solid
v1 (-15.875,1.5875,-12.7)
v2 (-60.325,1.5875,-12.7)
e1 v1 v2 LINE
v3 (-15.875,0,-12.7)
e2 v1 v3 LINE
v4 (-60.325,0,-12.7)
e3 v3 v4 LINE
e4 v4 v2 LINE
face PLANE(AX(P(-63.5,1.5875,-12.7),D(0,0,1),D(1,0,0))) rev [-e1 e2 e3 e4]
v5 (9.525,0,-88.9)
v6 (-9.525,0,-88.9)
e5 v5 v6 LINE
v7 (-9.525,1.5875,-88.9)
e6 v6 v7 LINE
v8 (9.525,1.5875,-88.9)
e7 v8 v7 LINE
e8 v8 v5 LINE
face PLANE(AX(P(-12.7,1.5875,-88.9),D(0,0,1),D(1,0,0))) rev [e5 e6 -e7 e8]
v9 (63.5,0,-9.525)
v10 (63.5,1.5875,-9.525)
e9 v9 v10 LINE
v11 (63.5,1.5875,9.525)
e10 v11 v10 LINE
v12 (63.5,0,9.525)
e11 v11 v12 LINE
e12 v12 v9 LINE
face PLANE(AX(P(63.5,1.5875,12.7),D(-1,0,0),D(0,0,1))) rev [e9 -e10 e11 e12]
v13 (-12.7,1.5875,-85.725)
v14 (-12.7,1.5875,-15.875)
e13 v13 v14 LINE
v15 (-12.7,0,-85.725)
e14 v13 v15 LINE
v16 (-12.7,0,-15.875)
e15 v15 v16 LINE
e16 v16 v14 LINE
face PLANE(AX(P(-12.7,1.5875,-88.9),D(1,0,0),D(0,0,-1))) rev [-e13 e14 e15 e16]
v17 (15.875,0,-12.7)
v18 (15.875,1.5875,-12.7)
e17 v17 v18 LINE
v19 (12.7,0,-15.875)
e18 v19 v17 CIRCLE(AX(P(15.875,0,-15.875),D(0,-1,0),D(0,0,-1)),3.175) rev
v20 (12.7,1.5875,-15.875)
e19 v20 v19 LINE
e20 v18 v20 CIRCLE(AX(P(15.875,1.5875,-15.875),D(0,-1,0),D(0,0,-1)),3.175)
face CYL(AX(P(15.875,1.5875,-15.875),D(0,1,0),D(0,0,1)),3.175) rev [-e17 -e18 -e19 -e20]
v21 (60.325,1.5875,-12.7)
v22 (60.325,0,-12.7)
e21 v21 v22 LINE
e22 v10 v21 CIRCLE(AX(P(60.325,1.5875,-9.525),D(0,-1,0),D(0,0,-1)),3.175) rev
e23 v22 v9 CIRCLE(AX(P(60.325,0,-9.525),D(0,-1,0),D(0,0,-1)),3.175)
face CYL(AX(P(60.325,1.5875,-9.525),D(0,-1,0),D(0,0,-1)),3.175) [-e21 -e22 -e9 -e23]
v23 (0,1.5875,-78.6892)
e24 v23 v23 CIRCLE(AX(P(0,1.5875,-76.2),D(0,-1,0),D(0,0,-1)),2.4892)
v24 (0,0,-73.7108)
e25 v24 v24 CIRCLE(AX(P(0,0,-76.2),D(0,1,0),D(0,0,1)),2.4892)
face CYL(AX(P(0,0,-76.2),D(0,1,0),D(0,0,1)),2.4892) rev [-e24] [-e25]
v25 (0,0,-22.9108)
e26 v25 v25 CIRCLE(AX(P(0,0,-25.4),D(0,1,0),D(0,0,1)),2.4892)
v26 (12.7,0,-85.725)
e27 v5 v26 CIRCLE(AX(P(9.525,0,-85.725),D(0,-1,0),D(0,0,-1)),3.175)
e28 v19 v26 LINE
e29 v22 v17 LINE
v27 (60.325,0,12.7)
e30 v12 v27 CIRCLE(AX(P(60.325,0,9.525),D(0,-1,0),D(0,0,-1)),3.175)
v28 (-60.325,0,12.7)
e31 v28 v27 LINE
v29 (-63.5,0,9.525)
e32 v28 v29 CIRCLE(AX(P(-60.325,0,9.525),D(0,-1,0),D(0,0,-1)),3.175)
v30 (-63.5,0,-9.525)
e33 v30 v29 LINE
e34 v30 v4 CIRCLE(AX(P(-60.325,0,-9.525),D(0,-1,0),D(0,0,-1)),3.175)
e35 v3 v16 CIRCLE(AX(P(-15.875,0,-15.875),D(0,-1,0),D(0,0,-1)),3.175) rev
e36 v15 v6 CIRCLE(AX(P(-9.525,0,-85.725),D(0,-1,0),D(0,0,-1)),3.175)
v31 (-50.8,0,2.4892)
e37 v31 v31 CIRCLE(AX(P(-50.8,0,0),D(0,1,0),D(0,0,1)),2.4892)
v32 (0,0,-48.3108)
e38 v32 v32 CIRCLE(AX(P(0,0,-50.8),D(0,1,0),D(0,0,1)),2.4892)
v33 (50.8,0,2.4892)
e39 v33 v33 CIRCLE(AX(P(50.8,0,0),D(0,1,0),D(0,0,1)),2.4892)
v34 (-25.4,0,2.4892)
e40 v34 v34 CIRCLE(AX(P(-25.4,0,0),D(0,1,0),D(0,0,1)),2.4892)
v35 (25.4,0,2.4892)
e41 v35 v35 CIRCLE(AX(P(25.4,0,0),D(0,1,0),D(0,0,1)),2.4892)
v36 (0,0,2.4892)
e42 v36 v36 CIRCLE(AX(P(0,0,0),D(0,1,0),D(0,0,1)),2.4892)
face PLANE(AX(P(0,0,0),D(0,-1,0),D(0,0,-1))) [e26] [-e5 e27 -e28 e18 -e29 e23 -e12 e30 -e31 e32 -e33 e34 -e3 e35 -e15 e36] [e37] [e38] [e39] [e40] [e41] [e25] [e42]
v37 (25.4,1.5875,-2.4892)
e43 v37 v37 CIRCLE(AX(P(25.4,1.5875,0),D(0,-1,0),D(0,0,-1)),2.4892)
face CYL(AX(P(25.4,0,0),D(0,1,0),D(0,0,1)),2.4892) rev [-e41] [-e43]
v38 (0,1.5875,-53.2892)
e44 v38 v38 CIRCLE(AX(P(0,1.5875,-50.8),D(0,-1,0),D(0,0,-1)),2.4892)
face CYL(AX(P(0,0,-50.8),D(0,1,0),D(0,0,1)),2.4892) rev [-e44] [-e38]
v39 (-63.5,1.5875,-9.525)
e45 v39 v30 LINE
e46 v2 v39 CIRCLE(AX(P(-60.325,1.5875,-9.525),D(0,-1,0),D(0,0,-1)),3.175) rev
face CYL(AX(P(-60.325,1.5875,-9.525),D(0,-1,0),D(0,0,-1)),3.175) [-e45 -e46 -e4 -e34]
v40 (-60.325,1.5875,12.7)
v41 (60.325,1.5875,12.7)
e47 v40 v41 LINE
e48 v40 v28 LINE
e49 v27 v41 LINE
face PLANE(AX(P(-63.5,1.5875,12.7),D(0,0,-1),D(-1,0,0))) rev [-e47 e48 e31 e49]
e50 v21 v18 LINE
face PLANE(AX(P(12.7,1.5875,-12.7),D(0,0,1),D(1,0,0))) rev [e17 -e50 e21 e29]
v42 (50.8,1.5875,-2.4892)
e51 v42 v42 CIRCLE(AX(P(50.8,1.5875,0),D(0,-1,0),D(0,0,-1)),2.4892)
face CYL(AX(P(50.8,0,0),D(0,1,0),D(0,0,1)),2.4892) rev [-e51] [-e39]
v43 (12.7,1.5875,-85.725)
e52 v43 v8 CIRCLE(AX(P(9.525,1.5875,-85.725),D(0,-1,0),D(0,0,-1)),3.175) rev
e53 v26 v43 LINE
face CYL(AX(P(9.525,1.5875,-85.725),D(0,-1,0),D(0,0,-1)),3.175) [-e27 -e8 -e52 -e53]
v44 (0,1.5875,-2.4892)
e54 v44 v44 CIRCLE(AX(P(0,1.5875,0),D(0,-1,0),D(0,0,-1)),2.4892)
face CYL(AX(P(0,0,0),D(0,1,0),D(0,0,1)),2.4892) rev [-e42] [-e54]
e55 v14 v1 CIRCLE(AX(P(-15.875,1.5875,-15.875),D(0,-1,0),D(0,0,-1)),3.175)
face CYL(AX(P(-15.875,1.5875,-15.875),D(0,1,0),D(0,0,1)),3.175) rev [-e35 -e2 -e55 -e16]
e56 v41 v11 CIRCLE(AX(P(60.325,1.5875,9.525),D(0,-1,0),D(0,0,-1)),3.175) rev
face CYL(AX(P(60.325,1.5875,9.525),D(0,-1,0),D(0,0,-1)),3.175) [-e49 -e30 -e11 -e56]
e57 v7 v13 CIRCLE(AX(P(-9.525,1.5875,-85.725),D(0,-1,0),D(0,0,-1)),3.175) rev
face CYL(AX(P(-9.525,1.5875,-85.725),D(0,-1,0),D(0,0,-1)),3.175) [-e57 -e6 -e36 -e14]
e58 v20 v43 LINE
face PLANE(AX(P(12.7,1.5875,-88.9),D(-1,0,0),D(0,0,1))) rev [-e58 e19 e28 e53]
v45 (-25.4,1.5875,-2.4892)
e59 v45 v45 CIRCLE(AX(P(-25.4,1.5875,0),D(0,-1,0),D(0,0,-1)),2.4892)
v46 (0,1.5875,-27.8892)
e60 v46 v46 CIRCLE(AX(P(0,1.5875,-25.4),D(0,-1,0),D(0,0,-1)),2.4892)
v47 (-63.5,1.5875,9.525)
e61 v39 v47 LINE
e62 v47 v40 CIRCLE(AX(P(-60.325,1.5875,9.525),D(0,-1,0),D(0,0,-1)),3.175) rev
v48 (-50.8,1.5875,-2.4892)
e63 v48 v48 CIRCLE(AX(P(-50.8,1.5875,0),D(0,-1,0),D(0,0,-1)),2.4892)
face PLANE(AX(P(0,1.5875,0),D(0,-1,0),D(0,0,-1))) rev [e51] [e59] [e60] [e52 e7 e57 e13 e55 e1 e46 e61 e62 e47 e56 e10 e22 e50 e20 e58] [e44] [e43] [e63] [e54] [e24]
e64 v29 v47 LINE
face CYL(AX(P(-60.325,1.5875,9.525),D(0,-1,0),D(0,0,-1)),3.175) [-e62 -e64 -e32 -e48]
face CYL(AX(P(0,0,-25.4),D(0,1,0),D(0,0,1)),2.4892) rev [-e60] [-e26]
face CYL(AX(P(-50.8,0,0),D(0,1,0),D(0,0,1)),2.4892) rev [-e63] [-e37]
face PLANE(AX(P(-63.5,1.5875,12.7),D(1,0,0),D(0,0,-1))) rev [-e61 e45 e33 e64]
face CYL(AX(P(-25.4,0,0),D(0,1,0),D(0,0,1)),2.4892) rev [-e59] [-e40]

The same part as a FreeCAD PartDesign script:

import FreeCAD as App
import Part
import Sketcher

V = App.Vector
Q = App.Units.Quantity


def edges_at(feature, points):
    """Names of the edges that pass closest to the given points."""
    edges = feature.Shape.Edges
    near = lambda p: min(range(len(edges)), key=lambda i: edges[i].distToShape(Part.Vertex(*p))[0])
    return sorted({f"Edge{near(p) + 1}" for p in points})

doc = App.newDocument("Part")
params = doc.addObject("Spreadsheet::Sheet", "Params")
for row, (alias, value) in enumerate([
    ("sketch1_width", "2 in"),
    ("sketch1_width2", "1 in"),
    ("sketch1_height", "3 in"),
    ("pad1_length", "0.0625 in"),
    ("sketch2_diameter", "0.196 in"),
    ("fillet_radius", "0.125 in"),
], start=1):
    params.set(f"A{row}", alias)
    params.set(f"B{row}", "=" + value)
    params.setAlias(f"B{row}", alias)

body = doc.addObject("PartDesign::Body", "Body")

# Sketch on XZ plane
sketch1 = body.newObject("Sketcher::SketchObject", "Sketch")
sketch1.AttachmentSupport = (doc.getObject("XZ_Plane"), [""])
sketch1.MapMode = "FlatFace"
sketch1.addGeometry([
    Part.LineSegment(V(63.5, -12.7, 0), V(12.7, -12.7, 0)),  # 0
    Part.LineSegment(V(12.7, -12.7, 0), V(12.7, -88.9, 0)),  # 1
    Part.LineSegment(V(12.7, -88.9, 0), V(-12.7, -88.9, 0)),  # 2
    Part.LineSegment(V(-12.7, -88.9, 0), V(-12.7, -12.7, 0)),  # 3
    Part.LineSegment(V(-12.7, -12.7, 0), V(-63.5, -12.7, 0)),  # 4
    Part.LineSegment(V(-63.5, -12.7, 0), V(-63.5, 12.7, 0)),  # 5
    Part.LineSegment(V(-63.5, 12.7, 0), V(63.5, 12.7, 0)),  # 6
    Part.LineSegment(V(63.5, 12.7, 0), V(63.5, -12.7, 0)),  # 7
], False)
sketch1.addConstraint([
    Sketcher.Constraint("Coincident", 0, 2, 1, 1),
    Sketcher.Constraint("Coincident", 1, 2, 2, 1),
    Sketcher.Constraint("Coincident", 2, 2, 3, 1),
    Sketcher.Constraint("Coincident", 3, 2, 4, 1),
    Sketcher.Constraint("Coincident", 4, 2, 5, 1),
    Sketcher.Constraint("Coincident", 5, 2, 6, 1),
    Sketcher.Constraint("Coincident", 6, 2, 7, 1),
    Sketcher.Constraint("Coincident", 7, 2, 0, 1),
    Sketcher.Constraint("Horizontal", 0),
    Sketcher.Constraint("Vertical", 1),
    Sketcher.Constraint("Horizontal", 2),
    Sketcher.Constraint("Vertical", 3),
    Sketcher.Constraint("Horizontal", 4),
    Sketcher.Constraint("Vertical", 5),
    Sketcher.Constraint("Horizontal", 6),
    Sketcher.Constraint("Vertical", 7),
    Sketcher.Constraint("Symmetric", 4, 2, 6, 2, -1, 1),
    Sketcher.Constraint("Symmetric", 0, 2, 3, 2, -2),
    Sketcher.Constraint("Equal", 2, 5),
    Sketcher.Constraint("DistanceX", 0, 2, 0, 1, Q("2 in")),
    Sketcher.Constraint("DistanceX", 2, 2, 2, 1, Q("1 in")),
    Sketcher.Constraint("DistanceY", 1, 2, 1, 1, Q("3 in")),
])
sketch1.setExpression("Constraints[19]", "Params.sketch1_width")
sketch1.setExpression("Constraints[20]", "Params.sketch1_width2")
sketch1.setExpression("Constraints[21]", "Params.sketch1_height")
pad1 = body.newObject("PartDesign::Pad", "Pad")
pad1.Profile = sketch1
pad1.setExpression("Length", "Params.pad1_length")
pad1.Reversed = True

# Sketch on XZ plane
sketch2 = body.newObject("Sketcher::SketchObject", "Sketch001")
sketch2.AttachmentSupport = (doc.getObject("XZ_Plane"), [""])
sketch2.MapMode = "FlatFace"
sketch2.AttachmentOffset = App.Placement(V(0, 0, -0.0625 * 25.4), App.Rotation())
sketch2.addGeometry([
    Part.Circle(V(0, 0, 0), V(0, 0, 1), 2.4892),  # 0
    Part.Circle(V(0, -25.4, 0), V(0, 0, 1), 2.4892),  # 1
    Part.Circle(V(0, -50.8, 0), V(0, 0, 1), 2.4892),  # 2
    Part.Circle(V(0, -76.2, 0), V(0, 0, 1), 2.4892),  # 3
    Part.Circle(V(-25.4, 0, 0), V(0, 0, 1), 2.4892),  # 4
    Part.Circle(V(-50.8, 0, 0), V(0, 0, 1), 2.4892),  # 5
    Part.Circle(V(25.4, 0, 0), V(0, 0, 1), 2.4892),  # 6
    Part.Circle(V(50.8, 0, 0), V(0, 0, 1), 2.4892),  # 7
], False)
sketch2.addConstraint([
    Sketcher.Constraint("Coincident", 0, 3, -1, 1),
    Sketcher.Constraint("Equal", 0, 1),
    Sketcher.Constraint("Equal", 1, 2),
    Sketcher.Constraint("Equal", 2, 3),
    Sketcher.Constraint("Equal", 3, 4),
    Sketcher.Constraint("Equal", 4, 5),
    Sketcher.Constraint("Equal", 5, 6),
    Sketcher.Constraint("Equal", 6, 7),
    Sketcher.Constraint("Symmetric", 4, 3, 6, 3, -1, 1),
    Sketcher.Constraint("Symmetric", 5, 3, 7, 3, -1, 1),
    Sketcher.Constraint("PointOnObject", 1, 3, -2),
    Sketcher.Constraint("PointOnObject", 2, 3, -2),
    Sketcher.Constraint("PointOnObject", 3, 3, -2),
    Sketcher.Constraint("PointOnObject", 4, 3, -1),
    Sketcher.Constraint("PointOnObject", 5, 3, -1),
    Sketcher.Constraint("Diameter", 0, Q("0.196 in")),
    Sketcher.Constraint("DistanceY", 1, 3, -1, 1, Q("1 in")),
    Sketcher.Constraint("DistanceY", 2, 3, -1, 1, Q("2 in")),
    Sketcher.Constraint("DistanceY", 3, 3, -1, 1, Q("3 in")),
    Sketcher.Constraint("DistanceX", 4, 3, -1, 1, Q("1 in")),
    Sketcher.Constraint("DistanceX", 5, 3, -1, 1, Q("2 in")),
])
sketch2.setExpression("Constraints[15]", "Params.sketch2_diameter")
pocket1 = body.newObject("PartDesign::Pocket", "Pocket")
pocket1.Profile = sketch2
pocket1.Type = "ThroughAll"
pocket1.Midplane = True
doc.recompute()

fillet = body.newObject("PartDesign::Fillet", "Fillet")
fillet.Base = (pocket1, edges_at(pocket1, [
    (63.5, 0.794, 12.7),
    (-63.5, 0.794, 12.7),
    (-63.5, 0.794, -12.7),
    (-12.7, 0.794, -12.7),
    (-12.7, 0.794, -88.9),
    (12.7, 0.794, -88.9),
    (12.7, 0.794, -12.7),
    (63.5, 0.794, -12.7),
]))
fillet.setExpression("Radius", "Params.fillet_radius")

doc.recompute()
